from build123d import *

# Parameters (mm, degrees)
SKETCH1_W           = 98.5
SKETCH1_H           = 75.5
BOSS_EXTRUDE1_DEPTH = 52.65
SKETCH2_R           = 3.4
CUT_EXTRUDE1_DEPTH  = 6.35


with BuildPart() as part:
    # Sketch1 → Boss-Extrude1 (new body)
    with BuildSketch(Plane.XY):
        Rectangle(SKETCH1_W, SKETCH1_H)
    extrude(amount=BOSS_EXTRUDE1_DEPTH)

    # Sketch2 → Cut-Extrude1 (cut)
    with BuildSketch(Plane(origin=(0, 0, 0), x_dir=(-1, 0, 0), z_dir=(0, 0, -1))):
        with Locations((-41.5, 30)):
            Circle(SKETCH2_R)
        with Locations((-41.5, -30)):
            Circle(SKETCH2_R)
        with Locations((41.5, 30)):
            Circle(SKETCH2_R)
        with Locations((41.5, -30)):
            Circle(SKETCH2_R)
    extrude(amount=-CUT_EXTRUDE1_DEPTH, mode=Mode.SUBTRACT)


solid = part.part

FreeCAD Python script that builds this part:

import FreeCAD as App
import Part
import Sketcher
Q = App.Units.Quantity

doc = App.newDocument("Part")
body = doc.addObject("PartDesign::Body", "Body")

# Sketch on XY plane
sketch1 = body.newObject("Sketcher::SketchObject", "Sketch")
sketch1.AttachmentSupport = (doc.getObject("XY_Plane"), [""])
sketch1.MapMode = "FlatFace"
sketch1.addGeometry([
    Part.LineSegment(App.Vector(-49.25, 37.75, 0), App.Vector(-49.25, -37.75, 0)),
    Part.LineSegment(App.Vector(-49.25, -37.75, 0), App.Vector(49.25, -37.75, 0)),
    Part.LineSegment(App.Vector(49.25, -37.75, 0), App.Vector(49.25, 37.75, 0)),
    Part.LineSegment(App.Vector(49.25, 37.75, 0), App.Vector(-49.25, 37.75, 0)),
], False)
sketch1.addConstraint([
    Sketcher.Constraint("Coincident", 0, 2, 1, 1),
    Sketcher.Constraint("Coincident", 1, 2, 2, 1),
    Sketcher.Constraint("Coincident", 2, 2, 3, 1),
    Sketcher.Constraint("Coincident", 3, 2, 0, 1),
    Sketcher.Constraint("Vertical", 0),
    Sketcher.Constraint("Horizontal", 1),
    Sketcher.Constraint("Vertical", 2),
    Sketcher.Constraint("Horizontal", 3),
    Sketcher.Constraint("Symmetric", 0, 2, 2, 2, -1, 1),
    Sketcher.Constraint("DistanceX", 1, 1, 1, 2, Q("98.5 mm")),
    Sketcher.Constraint("DistanceY", 0, 2, 0, 1, Q("75.5 mm")),
])
pad1 = body.newObject("PartDesign::Pad", "Pad")
pad1.Profile = sketch1
pad1.Length = 52.65

# Sketch on XY plane
sketch2 = body.newObject("Sketcher::SketchObject", "Sketch001")
sketch2.AttachmentSupport = (doc.getObject("XY_Plane"), [""])
sketch2.MapMode = "FlatFace"
sketch2.addGeometry([
    Part.Circle(App.Vector(41.5, 30, 0), App.Vector(0, 0, 1), 3.4),
    Part.Circle(App.Vector(41.5, -30, 0), App.Vector(0, 0, 1), 3.4),
    Part.Circle(App.Vector(-41.5, 30, 0), App.Vector(0, 0, 1), 3.4),
    Part.Circle(App.Vector(-41.5, -30, 0), App.Vector(0, 0, 1), 3.4),
], False)
sketch2.addConstraint([
    Sketcher.Constraint("Equal", 0, 1),
    Sketcher.Constraint("Equal", 1, 2),
    Sketcher.Constraint("Equal", 2, 3),
    Sketcher.Constraint("Symmetric", 1, 3, 2, 3, -1, 1),
    Sketcher.Constraint("Symmetric", 0, 3, 3, 3, -1, 1),
    Sketcher.Constraint("Symmetric", 0, 3, 2, 3, -2),
    Sketcher.Constraint("Diameter", 0, Q("6.8 mm")),
    Sketcher.Constraint("DistanceY", -1, 1, 0, 3, Q("30 mm")),
    Sketcher.Constraint("DistanceX", 2, 3, 0, 3, Q("83 mm")),
])
pocket1 = body.newObject("PartDesign::Pocket", "Pocket")
pocket1.Profile = sketch2
pocket1.Length = 6.35
pocket1.Reversed = True

doc.recompute()
